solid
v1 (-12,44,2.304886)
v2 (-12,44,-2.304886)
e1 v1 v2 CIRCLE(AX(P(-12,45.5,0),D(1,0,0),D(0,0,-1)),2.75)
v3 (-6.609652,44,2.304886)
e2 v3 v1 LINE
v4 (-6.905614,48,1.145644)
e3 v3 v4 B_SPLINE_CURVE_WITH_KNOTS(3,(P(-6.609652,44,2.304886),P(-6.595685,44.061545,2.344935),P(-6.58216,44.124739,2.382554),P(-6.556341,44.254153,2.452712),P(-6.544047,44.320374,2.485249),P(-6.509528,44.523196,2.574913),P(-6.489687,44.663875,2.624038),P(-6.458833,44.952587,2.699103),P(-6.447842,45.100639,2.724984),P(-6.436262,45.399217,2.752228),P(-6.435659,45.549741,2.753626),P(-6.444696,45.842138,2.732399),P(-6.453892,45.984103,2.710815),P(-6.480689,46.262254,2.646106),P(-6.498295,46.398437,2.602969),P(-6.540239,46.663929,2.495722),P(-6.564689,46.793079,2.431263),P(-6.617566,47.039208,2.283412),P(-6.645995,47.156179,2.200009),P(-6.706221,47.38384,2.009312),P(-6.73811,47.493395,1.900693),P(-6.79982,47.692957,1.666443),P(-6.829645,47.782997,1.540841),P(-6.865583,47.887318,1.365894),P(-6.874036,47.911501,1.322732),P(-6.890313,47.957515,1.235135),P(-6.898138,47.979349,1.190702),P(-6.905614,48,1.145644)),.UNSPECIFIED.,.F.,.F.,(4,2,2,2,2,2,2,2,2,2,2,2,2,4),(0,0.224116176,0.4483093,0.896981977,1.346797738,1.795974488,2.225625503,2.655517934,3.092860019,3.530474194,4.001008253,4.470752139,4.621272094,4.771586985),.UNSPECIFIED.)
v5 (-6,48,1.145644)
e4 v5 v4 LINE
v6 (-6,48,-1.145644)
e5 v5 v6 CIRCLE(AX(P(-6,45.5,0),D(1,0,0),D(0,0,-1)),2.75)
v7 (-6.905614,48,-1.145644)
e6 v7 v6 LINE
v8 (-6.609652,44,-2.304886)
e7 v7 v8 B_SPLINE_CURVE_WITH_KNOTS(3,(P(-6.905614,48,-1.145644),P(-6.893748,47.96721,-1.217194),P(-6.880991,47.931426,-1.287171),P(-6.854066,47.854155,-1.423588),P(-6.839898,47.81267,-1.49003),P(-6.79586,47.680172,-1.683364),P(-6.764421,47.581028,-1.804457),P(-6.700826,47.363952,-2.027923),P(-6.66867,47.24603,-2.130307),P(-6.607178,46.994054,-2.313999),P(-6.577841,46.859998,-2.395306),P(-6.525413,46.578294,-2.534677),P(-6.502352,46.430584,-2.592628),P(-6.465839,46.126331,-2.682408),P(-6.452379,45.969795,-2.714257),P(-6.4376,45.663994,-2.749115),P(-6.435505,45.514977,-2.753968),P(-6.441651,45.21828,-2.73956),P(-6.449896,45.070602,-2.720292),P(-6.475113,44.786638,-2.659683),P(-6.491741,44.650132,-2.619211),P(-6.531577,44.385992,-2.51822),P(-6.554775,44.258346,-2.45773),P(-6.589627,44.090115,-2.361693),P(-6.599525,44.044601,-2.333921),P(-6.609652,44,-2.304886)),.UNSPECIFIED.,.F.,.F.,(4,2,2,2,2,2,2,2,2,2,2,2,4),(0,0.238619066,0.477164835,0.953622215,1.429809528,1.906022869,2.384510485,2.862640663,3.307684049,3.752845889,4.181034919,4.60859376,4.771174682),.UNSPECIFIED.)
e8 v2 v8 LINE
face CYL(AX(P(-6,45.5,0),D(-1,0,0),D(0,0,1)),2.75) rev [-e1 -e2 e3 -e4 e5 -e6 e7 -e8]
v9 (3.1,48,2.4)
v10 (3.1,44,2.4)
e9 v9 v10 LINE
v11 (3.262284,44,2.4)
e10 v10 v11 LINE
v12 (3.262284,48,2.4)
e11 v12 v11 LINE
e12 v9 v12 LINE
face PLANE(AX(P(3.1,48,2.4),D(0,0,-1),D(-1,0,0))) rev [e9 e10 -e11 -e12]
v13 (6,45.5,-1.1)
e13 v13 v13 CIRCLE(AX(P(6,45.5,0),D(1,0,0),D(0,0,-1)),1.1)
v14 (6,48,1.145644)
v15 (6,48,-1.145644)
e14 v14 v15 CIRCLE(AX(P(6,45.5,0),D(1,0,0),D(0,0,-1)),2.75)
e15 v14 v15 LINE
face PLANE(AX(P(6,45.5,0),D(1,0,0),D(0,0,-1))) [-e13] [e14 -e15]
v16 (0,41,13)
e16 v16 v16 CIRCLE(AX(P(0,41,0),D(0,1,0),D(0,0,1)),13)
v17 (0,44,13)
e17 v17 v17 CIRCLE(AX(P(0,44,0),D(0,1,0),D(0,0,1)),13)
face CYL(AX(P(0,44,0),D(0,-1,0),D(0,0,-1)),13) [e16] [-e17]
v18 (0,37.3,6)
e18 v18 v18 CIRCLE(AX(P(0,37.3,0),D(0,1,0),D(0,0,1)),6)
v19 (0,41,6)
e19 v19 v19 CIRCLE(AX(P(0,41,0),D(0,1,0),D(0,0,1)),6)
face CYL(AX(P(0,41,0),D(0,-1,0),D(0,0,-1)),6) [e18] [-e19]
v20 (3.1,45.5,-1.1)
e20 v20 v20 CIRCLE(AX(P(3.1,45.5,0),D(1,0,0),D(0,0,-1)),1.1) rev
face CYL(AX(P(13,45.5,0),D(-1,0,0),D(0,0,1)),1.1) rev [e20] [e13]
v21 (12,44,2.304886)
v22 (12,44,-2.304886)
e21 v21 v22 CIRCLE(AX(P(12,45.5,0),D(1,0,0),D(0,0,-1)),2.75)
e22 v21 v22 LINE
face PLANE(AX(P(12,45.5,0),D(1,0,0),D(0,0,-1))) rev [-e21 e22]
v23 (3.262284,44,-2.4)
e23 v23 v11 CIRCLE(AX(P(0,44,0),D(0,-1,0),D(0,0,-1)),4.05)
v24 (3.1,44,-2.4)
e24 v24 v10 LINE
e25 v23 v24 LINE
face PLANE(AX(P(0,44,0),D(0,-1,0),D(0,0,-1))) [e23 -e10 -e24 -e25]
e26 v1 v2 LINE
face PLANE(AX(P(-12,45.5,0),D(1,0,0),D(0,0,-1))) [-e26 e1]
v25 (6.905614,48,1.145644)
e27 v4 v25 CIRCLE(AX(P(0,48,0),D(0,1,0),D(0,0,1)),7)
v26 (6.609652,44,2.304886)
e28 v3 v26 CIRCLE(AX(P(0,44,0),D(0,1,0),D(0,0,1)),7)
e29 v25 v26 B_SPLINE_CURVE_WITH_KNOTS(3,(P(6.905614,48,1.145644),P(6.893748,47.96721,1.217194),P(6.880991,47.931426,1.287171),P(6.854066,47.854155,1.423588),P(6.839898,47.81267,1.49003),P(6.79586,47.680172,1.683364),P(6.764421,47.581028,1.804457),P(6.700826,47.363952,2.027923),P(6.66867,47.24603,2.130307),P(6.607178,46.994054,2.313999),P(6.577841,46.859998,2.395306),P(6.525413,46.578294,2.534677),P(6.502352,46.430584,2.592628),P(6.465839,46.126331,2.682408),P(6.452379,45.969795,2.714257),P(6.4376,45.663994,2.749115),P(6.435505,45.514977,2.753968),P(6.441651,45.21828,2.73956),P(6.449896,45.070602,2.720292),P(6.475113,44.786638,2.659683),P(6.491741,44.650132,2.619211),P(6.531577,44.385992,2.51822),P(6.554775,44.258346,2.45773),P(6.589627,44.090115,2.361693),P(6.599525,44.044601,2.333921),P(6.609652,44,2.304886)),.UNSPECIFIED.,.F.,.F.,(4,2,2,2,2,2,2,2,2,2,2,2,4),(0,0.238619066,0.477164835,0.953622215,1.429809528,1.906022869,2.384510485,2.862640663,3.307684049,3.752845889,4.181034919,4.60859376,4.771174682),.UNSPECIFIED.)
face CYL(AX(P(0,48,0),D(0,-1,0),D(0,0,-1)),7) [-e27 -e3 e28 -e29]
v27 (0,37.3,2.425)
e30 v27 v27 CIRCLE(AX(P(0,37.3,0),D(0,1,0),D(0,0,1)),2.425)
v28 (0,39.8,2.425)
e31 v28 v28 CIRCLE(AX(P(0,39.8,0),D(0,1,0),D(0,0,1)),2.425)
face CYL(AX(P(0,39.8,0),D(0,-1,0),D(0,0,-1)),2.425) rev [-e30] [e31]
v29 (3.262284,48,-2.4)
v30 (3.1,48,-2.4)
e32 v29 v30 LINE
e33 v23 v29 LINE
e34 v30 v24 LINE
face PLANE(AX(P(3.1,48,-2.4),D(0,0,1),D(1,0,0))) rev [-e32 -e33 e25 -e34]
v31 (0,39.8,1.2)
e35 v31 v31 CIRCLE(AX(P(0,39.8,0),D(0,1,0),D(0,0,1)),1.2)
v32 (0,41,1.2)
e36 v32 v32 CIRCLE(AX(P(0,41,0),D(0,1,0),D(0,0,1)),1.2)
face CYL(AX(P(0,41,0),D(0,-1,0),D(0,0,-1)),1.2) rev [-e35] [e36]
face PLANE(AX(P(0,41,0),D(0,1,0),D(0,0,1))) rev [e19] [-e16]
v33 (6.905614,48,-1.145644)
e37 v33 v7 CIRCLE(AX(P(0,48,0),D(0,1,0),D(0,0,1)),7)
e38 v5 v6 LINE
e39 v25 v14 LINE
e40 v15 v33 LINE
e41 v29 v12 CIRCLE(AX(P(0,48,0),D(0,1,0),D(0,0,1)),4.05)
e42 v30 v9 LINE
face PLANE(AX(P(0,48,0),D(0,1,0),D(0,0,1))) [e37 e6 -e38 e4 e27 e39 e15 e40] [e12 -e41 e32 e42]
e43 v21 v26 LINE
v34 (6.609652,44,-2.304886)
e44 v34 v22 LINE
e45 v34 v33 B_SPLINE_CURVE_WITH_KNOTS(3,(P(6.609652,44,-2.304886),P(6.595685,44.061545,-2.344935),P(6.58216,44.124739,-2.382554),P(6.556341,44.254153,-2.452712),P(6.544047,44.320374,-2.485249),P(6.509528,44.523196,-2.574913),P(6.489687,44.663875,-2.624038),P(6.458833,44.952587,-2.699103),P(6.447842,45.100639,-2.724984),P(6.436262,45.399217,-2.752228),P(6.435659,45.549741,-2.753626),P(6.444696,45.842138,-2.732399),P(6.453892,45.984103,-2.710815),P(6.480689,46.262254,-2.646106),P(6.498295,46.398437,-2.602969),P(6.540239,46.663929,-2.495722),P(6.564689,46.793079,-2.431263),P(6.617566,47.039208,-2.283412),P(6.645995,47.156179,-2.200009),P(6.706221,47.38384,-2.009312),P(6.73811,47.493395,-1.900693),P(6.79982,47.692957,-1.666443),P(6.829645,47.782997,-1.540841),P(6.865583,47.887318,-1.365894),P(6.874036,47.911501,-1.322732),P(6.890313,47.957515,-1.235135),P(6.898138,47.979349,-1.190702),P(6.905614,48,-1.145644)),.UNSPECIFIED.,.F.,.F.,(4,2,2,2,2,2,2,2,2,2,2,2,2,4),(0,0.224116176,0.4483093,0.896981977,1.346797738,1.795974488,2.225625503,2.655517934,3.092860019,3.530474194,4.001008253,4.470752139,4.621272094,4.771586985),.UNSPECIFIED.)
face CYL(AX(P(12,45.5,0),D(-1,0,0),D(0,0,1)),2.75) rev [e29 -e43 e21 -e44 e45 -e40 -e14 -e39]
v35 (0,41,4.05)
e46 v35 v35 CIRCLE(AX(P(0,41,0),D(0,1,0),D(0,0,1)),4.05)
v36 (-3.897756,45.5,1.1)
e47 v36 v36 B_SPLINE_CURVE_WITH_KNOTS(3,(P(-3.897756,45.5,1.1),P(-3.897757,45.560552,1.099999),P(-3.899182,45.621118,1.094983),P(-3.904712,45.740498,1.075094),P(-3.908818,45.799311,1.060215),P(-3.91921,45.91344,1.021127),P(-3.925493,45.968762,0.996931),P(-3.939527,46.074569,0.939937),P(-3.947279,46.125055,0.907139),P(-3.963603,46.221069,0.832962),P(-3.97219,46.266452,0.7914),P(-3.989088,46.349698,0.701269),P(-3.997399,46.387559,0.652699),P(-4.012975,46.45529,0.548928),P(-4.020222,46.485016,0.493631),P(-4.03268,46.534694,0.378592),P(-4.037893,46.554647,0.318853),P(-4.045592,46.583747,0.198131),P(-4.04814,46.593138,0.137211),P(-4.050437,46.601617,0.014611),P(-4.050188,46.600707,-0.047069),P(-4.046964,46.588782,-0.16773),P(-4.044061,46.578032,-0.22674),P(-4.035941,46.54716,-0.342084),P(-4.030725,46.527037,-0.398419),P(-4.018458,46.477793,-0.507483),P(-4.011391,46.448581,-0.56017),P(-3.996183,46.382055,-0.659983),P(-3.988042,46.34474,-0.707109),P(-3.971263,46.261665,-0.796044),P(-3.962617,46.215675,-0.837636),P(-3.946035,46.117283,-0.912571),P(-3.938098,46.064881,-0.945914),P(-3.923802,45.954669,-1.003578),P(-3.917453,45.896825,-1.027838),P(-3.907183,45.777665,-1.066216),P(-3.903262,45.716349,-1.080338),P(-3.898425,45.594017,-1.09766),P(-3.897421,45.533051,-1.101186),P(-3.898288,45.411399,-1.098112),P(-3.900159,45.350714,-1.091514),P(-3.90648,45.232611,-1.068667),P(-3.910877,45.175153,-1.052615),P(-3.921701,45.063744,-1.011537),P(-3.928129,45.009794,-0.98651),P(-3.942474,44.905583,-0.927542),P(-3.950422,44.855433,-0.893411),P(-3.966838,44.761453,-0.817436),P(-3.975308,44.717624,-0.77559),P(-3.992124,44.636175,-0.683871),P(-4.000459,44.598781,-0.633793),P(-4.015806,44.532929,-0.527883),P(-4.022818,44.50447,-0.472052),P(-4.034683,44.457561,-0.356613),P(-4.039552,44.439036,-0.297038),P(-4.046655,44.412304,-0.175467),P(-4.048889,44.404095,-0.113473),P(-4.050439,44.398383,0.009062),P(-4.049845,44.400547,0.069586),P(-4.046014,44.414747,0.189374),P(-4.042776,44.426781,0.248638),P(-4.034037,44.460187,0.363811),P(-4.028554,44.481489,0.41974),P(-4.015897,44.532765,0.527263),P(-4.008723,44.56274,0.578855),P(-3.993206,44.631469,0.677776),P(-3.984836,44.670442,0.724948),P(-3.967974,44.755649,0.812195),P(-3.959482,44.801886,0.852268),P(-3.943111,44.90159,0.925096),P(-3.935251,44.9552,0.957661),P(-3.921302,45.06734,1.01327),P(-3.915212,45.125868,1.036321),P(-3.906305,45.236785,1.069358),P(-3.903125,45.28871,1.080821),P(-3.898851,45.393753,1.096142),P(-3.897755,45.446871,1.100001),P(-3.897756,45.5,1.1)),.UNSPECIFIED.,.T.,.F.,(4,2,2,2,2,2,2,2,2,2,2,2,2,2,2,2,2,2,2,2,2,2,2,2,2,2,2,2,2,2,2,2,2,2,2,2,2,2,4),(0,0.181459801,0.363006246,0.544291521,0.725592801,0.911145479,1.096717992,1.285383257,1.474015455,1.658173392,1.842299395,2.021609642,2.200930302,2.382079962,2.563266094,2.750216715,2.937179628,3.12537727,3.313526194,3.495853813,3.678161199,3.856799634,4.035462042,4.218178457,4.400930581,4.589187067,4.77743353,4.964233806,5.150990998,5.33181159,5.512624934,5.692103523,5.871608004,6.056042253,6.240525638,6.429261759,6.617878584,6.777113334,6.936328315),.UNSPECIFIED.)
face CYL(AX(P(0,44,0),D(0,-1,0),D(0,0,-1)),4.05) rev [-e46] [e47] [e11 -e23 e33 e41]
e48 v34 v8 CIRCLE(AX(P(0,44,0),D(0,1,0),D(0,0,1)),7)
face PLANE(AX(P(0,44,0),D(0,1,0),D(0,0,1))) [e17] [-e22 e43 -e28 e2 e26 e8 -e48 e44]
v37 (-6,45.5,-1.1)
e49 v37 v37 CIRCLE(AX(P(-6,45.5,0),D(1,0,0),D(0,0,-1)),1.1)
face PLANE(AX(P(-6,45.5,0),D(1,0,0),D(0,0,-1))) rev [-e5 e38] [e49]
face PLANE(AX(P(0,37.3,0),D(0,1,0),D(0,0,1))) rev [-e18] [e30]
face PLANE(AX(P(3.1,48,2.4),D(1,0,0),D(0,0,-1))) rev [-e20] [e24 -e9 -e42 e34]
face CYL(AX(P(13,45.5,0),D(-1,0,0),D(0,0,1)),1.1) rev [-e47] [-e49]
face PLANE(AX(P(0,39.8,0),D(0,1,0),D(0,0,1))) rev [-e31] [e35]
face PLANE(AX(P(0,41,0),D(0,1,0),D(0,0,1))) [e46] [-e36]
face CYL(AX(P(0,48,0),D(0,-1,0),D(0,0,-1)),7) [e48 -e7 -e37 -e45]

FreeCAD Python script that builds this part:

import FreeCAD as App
import Part
import Sketcher
Q = App.Units.Quantity


def add_polygon(sketch, points):
    """Adds a closed chain of lines whose ends are joined by coincident constraints."""
    first, n = sketch.GeometryCount, len(points)
    for a, b in zip(points, points[1:] + points[:1]):
        sketch.addGeometry(Part.LineSegment(App.Vector(*a, 0), App.Vector(*b, 0)), False)
    for i in range(n):
        sketch.addConstraint(Sketcher.Constraint("Coincident", first + i, 2, first + (i + 1) % n, 1))

doc = App.newDocument("Part")
body = doc.addObject("PartDesign::Body", "Body")

# Sketch on XZ plane
sketch1 = body.newObject("Sketcher::SketchObject", "Sketch")
sketch1.AttachmentSupport = (doc.getObject("XZ_Plane"), [""])
sketch1.MapMode = "FlatFace"
sketch1.AttachmentOffset = App.Placement(App.Vector(0, 0, -41), App.Rotation())
sketch1.addGeometry([
    Part.Circle(App.Vector(0, 0, 0), App.Vector(0, 0, 1), 13),
    Part.Circle(App.Vector(0, 0, 0), App.Vector(0, 0, 1), 4),
], False)
sketch1.addConstraint([
    Sketcher.Constraint("Coincident", 0, 3, -1, 1),
    Sketcher.Constraint("Coincident", 1, 3, -1, 1),
    Sketcher.Constraint("Diameter", 0, Q("26 mm")),
    Sketcher.Constraint("Diameter", 1, Q("8.1 mm")),
])
pad1 = body.newObject("PartDesign::Pad", "Pad")
pad1.Profile = sketch1
pad1.Length = 3
pad1.Reversed = True

# Sketch on XZ plane
sketch2 = body.newObject("Sketcher::SketchObject", "Sketch001")
sketch2.AttachmentSupport = (doc.getObject("XZ_Plane"), [""])
sketch2.MapMode = "FlatFace"
sketch2.AttachmentOffset = App.Placement(App.Vector(0, 0, -44), App.Rotation())
sketch2.addGeometry([
    Part.Circle(App.Vector(0, 0, 0), App.Vector(0, 0, 1), 7),
    Part.Circle(App.Vector(0, 0, 0), App.Vector(0, 0, 1), 4),
], False)
sketch2.addConstraint([
    Sketcher.Constraint("Coincident", 0, 3, -1, 1),
    Sketcher.Constraint("Coincident", 1, 3, -1, 1),
    Sketcher.Constraint("Diameter", 0, Q("14 mm")),
    Sketcher.Constraint("Diameter", 1, Q("8.1 mm")),
])
pad2 = body.newObject("PartDesign::Pad", "Pad001")
pad2.Profile = sketch2
pad2.Length = 4
pad2.Reversed = True

# Sketch on XZ plane
sketch3 = body.newObject("Sketcher::SketchObject", "Sketch002")
sketch3.AttachmentSupport = (doc.getObject("XZ_Plane"), [""])
sketch3.MapMode = "FlatFace"
sketch3.AttachmentOffset = App.Placement(App.Vector(0, 0, -44), App.Rotation())
add_polygon(sketch3, [(3.1, -2.4), (3.1, 2.4), (6, 2.4), (6, -2.4)])  # lines 0-3
sketch3.addConstraint([
    Sketcher.Constraint("Vertical", 0),
    Sketcher.Constraint("Horizontal", 1),
    Sketcher.Constraint("Vertical", 2),
    Sketcher.Constraint("Horizontal", 3),
    Sketcher.Constraint("DistanceX", 1, 1, 1, 2, Q("2.9 mm")),
    Sketcher.Constraint("DistanceY", 0, 1, 0, 2, Q("4.8 mm")),
    Sketcher.Constraint("DistanceX", -1, 1, 1, 2, Q("6 mm")),
    Sketcher.Constraint("DistanceY", -1, 1, 0, 2, Q("2.4 mm")),
])
pad3 = body.newObject("PartDesign::Pad", "Pad002")
pad3.Profile = sketch3
pad3.Length = 4
pad3.Reversed = True

# Sketch on YZ plane
sketch4 = body.newObject("Sketcher::SketchObject", "Sketch003")
sketch4.AttachmentSupport = (doc.getObject("YZ_Plane"), [""])
sketch4.MapMode = "FlatFace"
sketch4.AttachmentOffset = App.Placement(App.Vector(0, 0, -10), App.Rotation())
sketch4.addGeometry(Part.Circle(App.Vector(45.5, 0, 0), App.Vector(0, 0, 1), 1.1), False)
sketch4.addConstraint([
    Sketcher.Constraint("PointOnObject", 0, 3, -1),
    Sketcher.Constraint("Diameter", 0, Q("2.2 mm")),
    Sketcher.Constraint("DistanceX", -1, 1, 0, 3, Q("45.5 mm")),
])
pocket1 = body.newObject("PartDesign::Pocket", "Pocket")
pocket1.Profile = sketch4
pocket1.Type = "ThroughAll"
pocket1.Reversed = True

# Sketch on YZ plane
sketch5 = body.newObject("Sketcher::SketchObject", "Sketch004")
sketch5.AttachmentSupport = (doc.getObject("YZ_Plane"), [""])
sketch5.MapMode = "FlatFace"
sketch5.AttachmentOffset = App.Placement(App.Vector(0, 0, -12), App.Rotation())
sketch5.addGeometry(Part.Circle(App.Vector(45.5, 0, 0), App.Vector(0, 0, 1), 2.8), False)
sketch5.addConstraint([
    Sketcher.Constraint("PointOnObject", 0, 3, -1),
    Sketcher.Constraint("Diameter", 0, Q("5.5 mm")),
    Sketcher.Constraint("DistanceX", -1, 1, 0, 3, Q("45.5 mm")),
])
pocket2 = body.newObject("PartDesign::Pocket", "Pocket001")
pocket2.Profile = sketch5
pocket2.Length = 6
pocket2.Reversed = True

# Sketch on YZ plane
sketch6 = body.newObject("Sketcher::SketchObject", "Sketch005")
sketch6.AttachmentSupport = (doc.getObject("YZ_Plane"), [""])
sketch6.MapMode = "FlatFace"
sketch6.AttachmentOffset = App.Placement(App.Vector(0, 0, 6), App.Rotation())
sketch6.addGeometry(Part.Circle(App.Vector(45.5, 0, 0), App.Vector(0, 0, 1), 2.8), False)
sketch6.addConstraint([
    Sketcher.Constraint("PointOnObject", 0, 3, -1),
    Sketcher.Constraint("Diameter", 0, Q("5.5 mm")),
    Sketcher.Constraint("DistanceX", -1, 1, 0, 3, Q("45.5 mm")),
])
pocket3 = body.newObject("PartDesign::Pocket", "Pocket002")
pocket3.Profile = sketch6
pocket3.Length = 6
pocket3.Reversed = True

# Sketch on XZ plane
sketch7 = body.newObject("Sketcher::SketchObject", "Sketch006")
sketch7.AttachmentSupport = (doc.getObject("XZ_Plane"), [""])
sketch7.MapMode = "FlatFace"
sketch7.AttachmentOffset = App.Placement(App.Vector(0, 0, -37.3), App.Rotation())
sketch7.addGeometry(Part.Circle(App.Vector(0, 0, 0), App.Vector(0, 0, 1), 6), False)
sketch7.addConstraint([
    Sketcher.Constraint("Coincident", 0, 3, -1, 1),
    Sketcher.Constraint("Diameter", 0, Q("12 mm")),
])
pad4 = body.newObject("PartDesign::Pad", "Pad003")
pad4.Profile = sketch7
pad4.Length = 3.7
pad4.Reversed = True

# Sketch on XZ plane
sketch8 = body.newObject("Sketcher::SketchObject", "Sketch007")
sketch8.AttachmentSupport = (doc.getObject("XZ_Plane"), [""])
sketch8.MapMode = "FlatFace"
sketch8.AttachmentOffset = App.Placement(App.Vector(0, 0, -37.3), App.Rotation())
sketch8.addGeometry(Part.Circle(App.Vector(0, 0, 0), App.Vector(0, 0, 1), 2.4), False)
sketch8.addConstraint([
    Sketcher.Constraint("Coincident", 0, 3, -1, 1),
    Sketcher.Constraint("Diameter", 0, Q("4.85 mm")),
])
pocket4 = body.newObject("PartDesign::Pocket", "Pocket003")
pocket4.Profile = sketch8
pocket4.Length = 2.5

# Sketch on XZ plane
sketch9 = body.newObject("Sketcher::SketchObject", "Sketch008")
sketch9.AttachmentSupport = (doc.getObject("XZ_Plane"), [""])
sketch9.MapMode = "FlatFace"
sketch9.AttachmentOffset = App.Placement(App.Vector(0, 0, -39.8), App.Rotation())
sketch9.addGeometry(Part.Circle(App.Vector(0, 0, 0), App.Vector(0, 0, 1), 1.2), False)
sketch9.addConstraint([
    Sketcher.Constraint("Coincident", 0, 3, -1, 1),
    Sketcher.Constraint("Diameter", 0, Q("2.4 mm")),
])
pocket5 = body.newObject("PartDesign::Pocket", "Pocket004")
pocket5.Profile = sketch9
pocket5.Length = 1.2

doc.recompute()
